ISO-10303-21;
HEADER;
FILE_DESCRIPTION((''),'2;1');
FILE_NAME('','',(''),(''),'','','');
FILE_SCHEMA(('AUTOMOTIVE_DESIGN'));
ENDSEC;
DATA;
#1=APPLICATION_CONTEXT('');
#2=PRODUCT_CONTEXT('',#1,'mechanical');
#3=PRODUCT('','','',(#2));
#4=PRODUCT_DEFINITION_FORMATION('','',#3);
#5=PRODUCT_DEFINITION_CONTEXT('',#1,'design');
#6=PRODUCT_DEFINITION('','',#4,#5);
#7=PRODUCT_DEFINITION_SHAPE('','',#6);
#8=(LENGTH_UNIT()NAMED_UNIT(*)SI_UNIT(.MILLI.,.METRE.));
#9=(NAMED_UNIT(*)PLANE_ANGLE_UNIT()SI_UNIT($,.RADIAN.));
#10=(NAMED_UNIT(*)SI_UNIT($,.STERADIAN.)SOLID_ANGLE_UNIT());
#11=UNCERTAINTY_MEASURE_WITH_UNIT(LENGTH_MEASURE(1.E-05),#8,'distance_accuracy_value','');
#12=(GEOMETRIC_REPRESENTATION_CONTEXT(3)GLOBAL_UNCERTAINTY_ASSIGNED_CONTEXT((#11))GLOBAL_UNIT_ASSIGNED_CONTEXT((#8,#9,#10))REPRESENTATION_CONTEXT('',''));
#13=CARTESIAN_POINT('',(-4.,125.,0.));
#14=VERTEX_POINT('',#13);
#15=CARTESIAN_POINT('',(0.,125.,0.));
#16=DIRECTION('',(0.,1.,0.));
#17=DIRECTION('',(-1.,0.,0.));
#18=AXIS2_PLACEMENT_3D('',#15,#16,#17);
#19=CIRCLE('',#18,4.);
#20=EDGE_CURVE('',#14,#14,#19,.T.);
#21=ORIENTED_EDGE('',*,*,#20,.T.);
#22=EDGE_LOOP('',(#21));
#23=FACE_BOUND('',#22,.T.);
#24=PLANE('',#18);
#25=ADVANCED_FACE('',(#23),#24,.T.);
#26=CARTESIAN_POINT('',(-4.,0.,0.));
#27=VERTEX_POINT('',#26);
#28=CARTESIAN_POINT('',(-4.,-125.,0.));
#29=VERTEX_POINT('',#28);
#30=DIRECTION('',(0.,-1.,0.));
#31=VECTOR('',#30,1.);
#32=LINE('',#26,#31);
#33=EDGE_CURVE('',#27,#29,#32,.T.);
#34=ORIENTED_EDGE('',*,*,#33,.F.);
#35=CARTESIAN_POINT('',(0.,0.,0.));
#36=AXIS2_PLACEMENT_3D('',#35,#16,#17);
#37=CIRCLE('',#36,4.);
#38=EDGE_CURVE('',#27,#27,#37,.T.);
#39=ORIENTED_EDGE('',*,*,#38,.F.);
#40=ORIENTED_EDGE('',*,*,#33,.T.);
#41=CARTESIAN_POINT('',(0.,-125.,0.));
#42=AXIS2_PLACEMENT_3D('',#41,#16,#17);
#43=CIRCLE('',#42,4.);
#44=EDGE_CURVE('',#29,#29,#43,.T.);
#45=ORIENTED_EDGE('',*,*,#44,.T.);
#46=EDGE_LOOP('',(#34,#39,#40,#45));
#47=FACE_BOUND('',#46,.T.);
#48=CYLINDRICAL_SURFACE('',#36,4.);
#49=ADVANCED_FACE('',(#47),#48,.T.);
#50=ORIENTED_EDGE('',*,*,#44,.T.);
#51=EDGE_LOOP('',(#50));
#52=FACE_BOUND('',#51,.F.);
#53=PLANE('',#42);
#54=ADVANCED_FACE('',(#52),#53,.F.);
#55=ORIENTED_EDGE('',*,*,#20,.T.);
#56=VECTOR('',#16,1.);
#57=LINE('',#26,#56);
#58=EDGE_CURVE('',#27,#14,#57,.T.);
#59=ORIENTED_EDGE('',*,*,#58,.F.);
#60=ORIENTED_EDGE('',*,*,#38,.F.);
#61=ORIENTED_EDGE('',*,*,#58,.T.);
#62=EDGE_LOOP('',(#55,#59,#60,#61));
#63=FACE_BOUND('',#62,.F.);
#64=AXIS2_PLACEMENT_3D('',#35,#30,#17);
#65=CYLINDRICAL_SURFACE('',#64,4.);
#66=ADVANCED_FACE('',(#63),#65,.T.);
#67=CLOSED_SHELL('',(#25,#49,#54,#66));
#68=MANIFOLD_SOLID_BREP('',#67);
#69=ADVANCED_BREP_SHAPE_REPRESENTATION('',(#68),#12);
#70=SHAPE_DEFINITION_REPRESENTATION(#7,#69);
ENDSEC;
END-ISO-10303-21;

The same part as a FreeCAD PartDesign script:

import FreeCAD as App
import Part
import Sketcher
from FreeCAD import Vector
Q = App.Units.Quantity

doc = App.newDocument("Part")
body = doc.addObject("PartDesign::Body", "Body")

# Sketch on XZ plane
sketch1 = body.newObject("Sketcher::SketchObject", "Sketch")
sketch1.AttachmentSupport = (doc.getObject("XZ_Plane"), [""])
sketch1.MapMode = "FlatFace"
sketch1.addGeometry(Part.Circle(Vector(0, 0, 0), Vector(0, 0, 1), 4), False)
sketch1.addConstraint([
    Sketcher.Constraint("Coincident", 0, 3, -1, 1),
    Sketcher.Constraint("Diameter", 0, Q("8 mm")),
])
pad1 = body.newObject("PartDesign::Pad", "Pad")
pad1.Profile = sketch1
pad1.Length = 250
pad1.Midplane = True

doc.recompute()
